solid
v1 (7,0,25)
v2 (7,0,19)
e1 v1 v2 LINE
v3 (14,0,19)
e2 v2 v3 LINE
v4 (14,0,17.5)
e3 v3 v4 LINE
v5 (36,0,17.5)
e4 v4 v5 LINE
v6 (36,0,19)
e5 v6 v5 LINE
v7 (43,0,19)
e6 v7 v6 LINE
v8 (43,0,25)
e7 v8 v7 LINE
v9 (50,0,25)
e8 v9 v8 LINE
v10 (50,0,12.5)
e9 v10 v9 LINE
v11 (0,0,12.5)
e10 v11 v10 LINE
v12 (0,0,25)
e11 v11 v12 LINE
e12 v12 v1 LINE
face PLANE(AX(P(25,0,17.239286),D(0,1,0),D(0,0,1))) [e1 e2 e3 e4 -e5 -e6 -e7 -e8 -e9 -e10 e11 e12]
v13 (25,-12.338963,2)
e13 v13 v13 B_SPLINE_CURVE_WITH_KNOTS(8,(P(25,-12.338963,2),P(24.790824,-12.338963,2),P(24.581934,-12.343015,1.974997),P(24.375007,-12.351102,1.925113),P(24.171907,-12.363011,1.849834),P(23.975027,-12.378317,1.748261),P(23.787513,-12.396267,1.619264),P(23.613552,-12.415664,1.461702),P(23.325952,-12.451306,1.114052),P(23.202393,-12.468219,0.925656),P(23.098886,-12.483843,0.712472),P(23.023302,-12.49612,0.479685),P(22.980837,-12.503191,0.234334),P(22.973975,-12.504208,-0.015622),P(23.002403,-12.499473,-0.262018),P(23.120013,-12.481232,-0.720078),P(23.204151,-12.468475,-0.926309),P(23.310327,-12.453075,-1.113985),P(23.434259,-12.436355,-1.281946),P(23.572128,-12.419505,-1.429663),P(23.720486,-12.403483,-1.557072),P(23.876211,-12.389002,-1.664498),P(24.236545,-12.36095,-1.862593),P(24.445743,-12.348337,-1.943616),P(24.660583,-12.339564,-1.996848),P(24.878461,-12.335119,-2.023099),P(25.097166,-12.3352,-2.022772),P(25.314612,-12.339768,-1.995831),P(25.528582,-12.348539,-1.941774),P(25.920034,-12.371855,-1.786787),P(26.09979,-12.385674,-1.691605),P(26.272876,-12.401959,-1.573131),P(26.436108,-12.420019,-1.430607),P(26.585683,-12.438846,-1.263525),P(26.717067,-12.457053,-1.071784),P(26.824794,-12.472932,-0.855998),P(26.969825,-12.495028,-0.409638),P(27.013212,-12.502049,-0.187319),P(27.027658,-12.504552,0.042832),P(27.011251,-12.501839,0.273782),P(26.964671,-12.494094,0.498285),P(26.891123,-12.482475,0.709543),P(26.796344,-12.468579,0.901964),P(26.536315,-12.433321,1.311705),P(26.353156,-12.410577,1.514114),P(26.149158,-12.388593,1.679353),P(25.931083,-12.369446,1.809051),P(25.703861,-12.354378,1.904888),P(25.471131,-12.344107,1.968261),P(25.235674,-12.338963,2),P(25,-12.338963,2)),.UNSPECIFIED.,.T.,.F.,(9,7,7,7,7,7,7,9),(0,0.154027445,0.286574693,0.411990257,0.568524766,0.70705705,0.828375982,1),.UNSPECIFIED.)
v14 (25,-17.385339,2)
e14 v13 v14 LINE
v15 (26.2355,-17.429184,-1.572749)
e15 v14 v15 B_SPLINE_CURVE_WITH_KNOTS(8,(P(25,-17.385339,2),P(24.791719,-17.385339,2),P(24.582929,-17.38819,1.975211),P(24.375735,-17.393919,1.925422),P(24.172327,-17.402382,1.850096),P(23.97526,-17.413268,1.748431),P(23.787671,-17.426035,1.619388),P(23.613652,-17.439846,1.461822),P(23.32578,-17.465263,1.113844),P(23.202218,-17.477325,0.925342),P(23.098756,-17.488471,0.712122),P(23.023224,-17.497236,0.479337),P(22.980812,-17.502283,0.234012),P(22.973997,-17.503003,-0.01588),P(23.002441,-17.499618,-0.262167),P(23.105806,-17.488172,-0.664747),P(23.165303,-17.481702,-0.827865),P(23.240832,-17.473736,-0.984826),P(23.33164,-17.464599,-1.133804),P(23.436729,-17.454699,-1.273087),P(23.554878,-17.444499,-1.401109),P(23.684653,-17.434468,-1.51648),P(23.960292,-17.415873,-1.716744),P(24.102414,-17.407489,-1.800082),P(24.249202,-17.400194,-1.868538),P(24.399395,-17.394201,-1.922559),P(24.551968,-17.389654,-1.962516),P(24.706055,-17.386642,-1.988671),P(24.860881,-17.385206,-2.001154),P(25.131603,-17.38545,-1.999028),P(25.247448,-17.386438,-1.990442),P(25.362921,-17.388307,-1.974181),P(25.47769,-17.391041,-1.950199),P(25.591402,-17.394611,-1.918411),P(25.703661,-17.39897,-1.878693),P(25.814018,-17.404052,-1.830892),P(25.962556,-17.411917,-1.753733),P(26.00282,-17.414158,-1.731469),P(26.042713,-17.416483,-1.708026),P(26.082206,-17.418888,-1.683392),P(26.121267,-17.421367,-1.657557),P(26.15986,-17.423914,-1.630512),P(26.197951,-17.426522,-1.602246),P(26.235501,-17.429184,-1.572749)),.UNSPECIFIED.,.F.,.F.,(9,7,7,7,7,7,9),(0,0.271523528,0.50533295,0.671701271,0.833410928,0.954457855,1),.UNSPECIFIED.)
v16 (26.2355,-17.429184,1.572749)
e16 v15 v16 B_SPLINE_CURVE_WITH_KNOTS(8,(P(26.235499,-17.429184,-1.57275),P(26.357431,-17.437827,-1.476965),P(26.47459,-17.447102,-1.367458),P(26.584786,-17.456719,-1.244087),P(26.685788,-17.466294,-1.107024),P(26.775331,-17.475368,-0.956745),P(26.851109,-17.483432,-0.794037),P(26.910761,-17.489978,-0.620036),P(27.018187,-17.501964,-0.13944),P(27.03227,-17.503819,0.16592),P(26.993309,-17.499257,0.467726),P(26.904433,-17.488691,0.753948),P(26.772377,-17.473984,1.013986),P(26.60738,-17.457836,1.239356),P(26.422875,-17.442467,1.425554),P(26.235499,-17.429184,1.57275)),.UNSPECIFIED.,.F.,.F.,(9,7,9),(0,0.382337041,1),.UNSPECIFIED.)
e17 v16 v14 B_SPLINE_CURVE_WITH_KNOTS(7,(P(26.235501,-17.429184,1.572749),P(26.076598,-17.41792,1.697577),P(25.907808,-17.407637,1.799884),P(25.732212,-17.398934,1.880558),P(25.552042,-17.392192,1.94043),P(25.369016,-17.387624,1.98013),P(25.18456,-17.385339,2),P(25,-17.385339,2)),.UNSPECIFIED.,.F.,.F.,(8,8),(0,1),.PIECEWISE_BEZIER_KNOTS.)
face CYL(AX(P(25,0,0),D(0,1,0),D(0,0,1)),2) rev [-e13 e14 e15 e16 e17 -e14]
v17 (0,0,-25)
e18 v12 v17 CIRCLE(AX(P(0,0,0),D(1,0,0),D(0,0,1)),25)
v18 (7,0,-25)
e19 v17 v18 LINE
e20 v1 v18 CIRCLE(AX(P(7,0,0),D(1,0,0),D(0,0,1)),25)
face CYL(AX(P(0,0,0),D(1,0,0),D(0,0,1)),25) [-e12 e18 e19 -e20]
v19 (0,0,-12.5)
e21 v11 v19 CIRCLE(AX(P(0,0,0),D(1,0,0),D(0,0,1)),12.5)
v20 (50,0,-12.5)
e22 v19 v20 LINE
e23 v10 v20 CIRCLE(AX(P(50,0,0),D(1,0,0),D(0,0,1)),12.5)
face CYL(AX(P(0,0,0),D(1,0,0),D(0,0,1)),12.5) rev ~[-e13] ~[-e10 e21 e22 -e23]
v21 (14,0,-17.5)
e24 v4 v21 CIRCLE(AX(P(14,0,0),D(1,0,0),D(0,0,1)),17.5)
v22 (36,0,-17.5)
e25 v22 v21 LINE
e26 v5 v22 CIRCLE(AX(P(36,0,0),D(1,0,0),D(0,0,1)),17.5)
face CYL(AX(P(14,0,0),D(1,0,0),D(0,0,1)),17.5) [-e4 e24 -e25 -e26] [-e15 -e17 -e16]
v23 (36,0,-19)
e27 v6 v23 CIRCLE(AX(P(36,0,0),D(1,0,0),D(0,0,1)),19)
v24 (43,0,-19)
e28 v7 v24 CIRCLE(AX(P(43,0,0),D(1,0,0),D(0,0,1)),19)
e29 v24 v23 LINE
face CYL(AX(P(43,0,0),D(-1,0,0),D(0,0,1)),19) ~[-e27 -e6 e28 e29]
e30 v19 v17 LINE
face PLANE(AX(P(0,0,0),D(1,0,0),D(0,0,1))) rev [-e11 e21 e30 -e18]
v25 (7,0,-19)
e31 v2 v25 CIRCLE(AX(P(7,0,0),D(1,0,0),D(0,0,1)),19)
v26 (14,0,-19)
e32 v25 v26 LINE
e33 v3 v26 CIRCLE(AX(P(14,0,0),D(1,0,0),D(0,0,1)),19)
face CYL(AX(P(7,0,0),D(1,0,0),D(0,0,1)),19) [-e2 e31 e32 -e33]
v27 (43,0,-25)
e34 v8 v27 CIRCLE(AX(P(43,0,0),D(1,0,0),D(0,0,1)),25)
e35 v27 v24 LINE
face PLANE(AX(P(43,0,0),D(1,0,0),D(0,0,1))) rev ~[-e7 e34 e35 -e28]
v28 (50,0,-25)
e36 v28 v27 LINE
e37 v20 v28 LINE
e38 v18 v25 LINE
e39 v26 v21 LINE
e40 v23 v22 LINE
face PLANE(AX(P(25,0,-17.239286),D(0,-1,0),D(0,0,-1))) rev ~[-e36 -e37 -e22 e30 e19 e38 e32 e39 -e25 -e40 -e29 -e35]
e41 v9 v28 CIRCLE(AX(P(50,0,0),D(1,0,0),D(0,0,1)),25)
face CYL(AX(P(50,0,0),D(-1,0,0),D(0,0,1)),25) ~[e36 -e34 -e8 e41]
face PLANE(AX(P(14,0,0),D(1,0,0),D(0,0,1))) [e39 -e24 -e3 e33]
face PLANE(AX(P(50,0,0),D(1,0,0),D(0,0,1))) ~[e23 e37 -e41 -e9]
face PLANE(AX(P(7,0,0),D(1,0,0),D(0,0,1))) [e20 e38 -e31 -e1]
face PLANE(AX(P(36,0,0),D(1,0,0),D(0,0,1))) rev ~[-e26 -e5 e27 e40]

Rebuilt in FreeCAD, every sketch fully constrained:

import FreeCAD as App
import Part
import Sketcher
from FreeCAD import Vector


def add_polygon(sketch, points):
    """Adds a closed chain of lines whose ends are joined by coincident constraints."""
    first, n = sketch.GeometryCount, len(points)
    for a, b in zip(points, points[1:] + points[:1]):
        sketch.addGeometry(Part.LineSegment(App.Vector(*a, 0), App.Vector(*b, 0)), False)
    for i in range(n):
        sketch.addConstraint(Sketcher.Constraint("Coincident", first + i, 2, first + (i + 1) % n, 1))

doc = App.newDocument("Part")
params = doc.addObject("Spreadsheet::Sheet", "Params")
for row, (alias, value) in enumerate([
    ("sketch1_width", "7 mm"),
    ("sketch1_width2", "50 mm"),
    ("sketch1_height", "6 mm"),
    ("sketch1_height2", "12.5 mm"),
    ("sketch1_height3", "1.5 mm"),
    ("revolution_angle", "180 deg"),
    ("sketch2_diameter", "4 mm"),
    ("hole_diameter", "4 mm"),
], start=1):
    params.set(f"A{row}", alias)
    params.set(f"B{row}", "=" + value)
    params.setAlias(f"B{row}", alias)

body = doc.addObject("PartDesign::Body", "Body")

sketch1 = body.newObject("Sketcher::SketchObject", "Sketch")
sketch1.AttachmentSupport = (doc.getObject("XZ_Plane"), [""])
sketch1.MapMode = "FlatFace"
add_polygon(sketch1, [(14, 19), (7, 19), (7, 25), (0, 25), (0, 12.5), (50, 12.5), (50, 25), (43, 25), (43, 19), (36, 19), (36, 17.5), (14, 17.5)])
sketch1.addConstraint([
    Sketcher.Constraint("Horizontal", 0),
    Sketcher.Constraint("Vertical", 1),
    Sketcher.Constraint("Horizontal", 2),
    Sketcher.Constraint("Vertical", 3),
    Sketcher.Constraint("Horizontal", 4),
    Sketcher.Constraint("Vertical", 5),
    Sketcher.Constraint("Horizontal", 6),
    Sketcher.Constraint("Vertical", 7),
    Sketcher.Constraint("Horizontal", 8),
    Sketcher.Constraint("Vertical", 9),
    Sketcher.Constraint("Horizontal", 10),
    Sketcher.Constraint("Vertical", 11),
    Sketcher.Constraint("PointOnObject", 2, 2, -2),
    Sketcher.Constraint("Horizontal", 2, 2, 5, 2),
    Sketcher.Constraint("Horizontal", 0, 2, 7, 2),
    Sketcher.Constraint("Equal", 0, 2),
    Sketcher.Constraint("Equal", 2, 6),
    Sketcher.Constraint("Equal", 6, 8),
    Sketcher.Constraint("DistanceX", 0, 2, 0, 1, 7.0),
    Sketcher.Constraint("DistanceX", 4, 1, 4, 2, 50.0),
    Sketcher.Constraint("DistanceY", 1, 1, 1, 2, 6.0),
    Sketcher.Constraint("DistanceY", 3, 2, 3, 1, 12.5),
    Sketcher.Constraint("DistanceY", 9, 2, 9, 1, 1.5),
    Sketcher.Constraint("DistanceY", -1, 1, 0, 2, 19.0),
])
sketch1.setExpression("Constraints[30]", "Params.sketch1_width")
sketch1.setExpression("Constraints[31]", "Params.sketch1_width2")
sketch1.setExpression("Constraints[32]", "Params.sketch1_height")
sketch1.setExpression("Constraints[33]", "Params.sketch1_height2")
sketch1.setExpression("Constraints[34]", "Params.sketch1_height3")
revolution = body.newObject("PartDesign::Revolution", "Revolution")
revolution.Profile = sketch1
revolution.ReferenceAxis = (sketch1, ["H_Axis"])
revolution.setExpression("Angle", "Params.revolution_angle")

sketch2 = body.newObject("Sketcher::SketchObject", "Sketch001")
sketch2.AttachmentSupport = (doc.getObject("XZ_Plane"), [""])
sketch2.MapMode = "FlatFace"
sketch2.addGeometry(Part.Circle(Vector(25, 0, 0), Vector(0, 0, 1), 2), False)
sketch2.addConstraint([
    Sketcher.Constraint("PointOnObject", 0, 3, -1),
    Sketcher.Constraint("Diameter", 0, 4.0),
    Sketcher.Constraint("DistanceX", -1, 1, 0, 3, 25.0),
])
sketch2.setExpression("Constraints[1]", "Params.sketch2_diameter")
doc.recompute()
hole = body.newObject("PartDesign::Hole", "Hole")
hole.Profile = sketch2
hole.ThreadType = "None"
hole.setExpression("Diameter", "Params.hole_diameter")
hole.DepthType = "ThroughAll"
hole.Reversed = True

doc.recompute()
